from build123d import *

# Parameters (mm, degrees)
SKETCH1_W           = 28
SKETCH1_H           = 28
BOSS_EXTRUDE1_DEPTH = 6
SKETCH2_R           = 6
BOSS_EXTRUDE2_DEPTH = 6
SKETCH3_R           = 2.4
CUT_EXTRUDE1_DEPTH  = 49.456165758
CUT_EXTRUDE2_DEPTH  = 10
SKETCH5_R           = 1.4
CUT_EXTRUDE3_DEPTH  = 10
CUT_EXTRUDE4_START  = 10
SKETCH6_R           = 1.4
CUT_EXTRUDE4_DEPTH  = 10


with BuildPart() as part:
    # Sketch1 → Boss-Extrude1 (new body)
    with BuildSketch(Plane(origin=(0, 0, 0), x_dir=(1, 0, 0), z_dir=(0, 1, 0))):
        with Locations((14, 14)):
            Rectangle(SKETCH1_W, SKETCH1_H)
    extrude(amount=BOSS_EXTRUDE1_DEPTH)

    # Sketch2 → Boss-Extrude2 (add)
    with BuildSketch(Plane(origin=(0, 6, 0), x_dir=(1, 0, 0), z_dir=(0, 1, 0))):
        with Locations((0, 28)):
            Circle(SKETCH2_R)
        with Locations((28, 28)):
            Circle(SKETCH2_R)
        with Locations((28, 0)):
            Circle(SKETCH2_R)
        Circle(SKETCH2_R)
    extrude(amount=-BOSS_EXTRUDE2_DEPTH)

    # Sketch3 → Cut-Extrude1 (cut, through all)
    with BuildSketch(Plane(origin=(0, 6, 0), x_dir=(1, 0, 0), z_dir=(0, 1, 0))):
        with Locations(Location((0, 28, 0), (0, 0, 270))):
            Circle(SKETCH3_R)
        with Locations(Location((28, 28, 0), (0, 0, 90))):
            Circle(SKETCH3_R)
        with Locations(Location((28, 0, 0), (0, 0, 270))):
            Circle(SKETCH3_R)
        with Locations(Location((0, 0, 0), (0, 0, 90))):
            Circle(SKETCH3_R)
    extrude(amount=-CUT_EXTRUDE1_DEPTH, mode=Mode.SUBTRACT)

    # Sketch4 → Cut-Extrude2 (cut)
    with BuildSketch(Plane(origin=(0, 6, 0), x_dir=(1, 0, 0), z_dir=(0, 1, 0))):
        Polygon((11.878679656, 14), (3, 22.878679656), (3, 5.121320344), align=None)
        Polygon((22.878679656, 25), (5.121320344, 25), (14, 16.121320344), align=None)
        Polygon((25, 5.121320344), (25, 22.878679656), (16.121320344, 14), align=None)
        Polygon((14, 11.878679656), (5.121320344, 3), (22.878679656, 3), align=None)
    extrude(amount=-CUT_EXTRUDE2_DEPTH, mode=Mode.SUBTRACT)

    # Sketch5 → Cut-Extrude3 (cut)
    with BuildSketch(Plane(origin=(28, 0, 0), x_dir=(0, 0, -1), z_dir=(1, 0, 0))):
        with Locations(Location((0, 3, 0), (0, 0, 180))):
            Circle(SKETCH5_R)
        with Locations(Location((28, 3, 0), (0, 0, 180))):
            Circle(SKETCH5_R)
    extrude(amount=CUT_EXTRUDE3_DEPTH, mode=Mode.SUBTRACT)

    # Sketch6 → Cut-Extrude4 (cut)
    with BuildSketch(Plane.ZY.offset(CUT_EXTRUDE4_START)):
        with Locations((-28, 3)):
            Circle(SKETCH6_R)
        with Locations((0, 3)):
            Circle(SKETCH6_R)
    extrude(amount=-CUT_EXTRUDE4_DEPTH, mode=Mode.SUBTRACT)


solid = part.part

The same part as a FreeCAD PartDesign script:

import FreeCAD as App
import Part
import Sketcher

doc = App.newDocument("Part")
body = doc.addObject("PartDesign::Body", "Body")

sketch1 = body.newObject("Sketcher::SketchObject", "Sketch")
sketch1.AttachmentSupport = (doc.getObject("XZ_Plane"), [""])
sketch1.MapMode = "FlatFace"
sketch1.addGeometry(Part.LineSegment(App.Vector(0, -28, 0), App.Vector(0, 0, 0)), False)
sketch1.addGeometry(Part.LineSegment(App.Vector(0, 0, 0), App.Vector(28, 0, 0)), False)
sketch1.addGeometry(Part.LineSegment(App.Vector(28, 0, 0), App.Vector(28, -28, 0)), False)
sketch1.addGeometry(Part.LineSegment(App.Vector(28, -28, 0), App.Vector(0, -28, 0)), False)
sketch1.addConstraint(Sketcher.Constraint("Coincident", 0, 2, 1, 1))
sketch1.addConstraint(Sketcher.Constraint("Coincident", 1, 2, 2, 1))
sketch1.addConstraint(Sketcher.Constraint("Coincident", 2, 2, 3, 1))
sketch1.addConstraint(Sketcher.Constraint("Coincident", 3, 2, 0, 1))
sketch1.addConstraint(Sketcher.Constraint("Vertical", 0))
sketch1.addConstraint(Sketcher.Constraint("Horizontal", 1))
sketch1.addConstraint(Sketcher.Constraint("Vertical", 2))
sketch1.addConstraint(Sketcher.Constraint("Horizontal", 3))
sketch1.addConstraint(Sketcher.Constraint("Coincident", 0, 2, -1, 1))
sketch1.addConstraint(Sketcher.Constraint("Equal", 3, 0))
sketch1.addConstraint(Sketcher.Constraint("DistanceX", 1, 1, 1, 2, 28.0))
pad1 = body.newObject("PartDesign::Pad", "Pad")
pad1.Profile = sketch1
pad1.Length = 6
pad1.Reversed = True

sketch2 = body.newObject("Sketcher::SketchObject", "Sketch001")
sketch2.AttachmentSupport = (doc.getObject("XZ_Plane"), [""])
sketch2.MapMode = "FlatFace"
sketch2.AttachmentOffset = App.Placement(App.Vector(0, 0, -6), App.Rotation())
sketch2.addGeometry(Part.Circle(App.Vector(0, -28, 0), App.Vector(0, 0, 1), 6), False)
sketch2.addGeometry(Part.Circle(App.Vector(28, -28, 0), App.Vector(0, 0, 1), 6), False)
sketch2.addGeometry(Part.Circle(App.Vector(28, 0, 0), App.Vector(0, 0, 1), 6), False)
sketch2.addGeometry(Part.Circle(App.Vector(0, 0, 0), App.Vector(0, 0, 1), 6), False)
sketch2.addConstraint(Sketcher.Constraint("Coincident", 3, 3, -1, 1))
sketch2.addConstraint(Sketcher.Constraint("Equal", 0, 1))
sketch2.addConstraint(Sketcher.Constraint("Equal", 1, 2))
sketch2.addConstraint(Sketcher.Constraint("Equal", 2, 3))
sketch2.addConstraint(Sketcher.Constraint("PointOnObject", 0, 3, -2))
sketch2.addConstraint(Sketcher.Constraint("PointOnObject", 2, 3, -1))
sketch2.addConstraint(Sketcher.Constraint("Horizontal", 0, 3, 1, 3))
sketch2.addConstraint(Sketcher.Constraint("Vertical", 1, 3, 2, 3))
sketch2.addConstraint(Sketcher.Constraint("Diameter", 0, 12.0))
sketch2.addConstraint(Sketcher.Constraint("DistanceY", 0, 3, -1, 1, 28.0))
sketch2.addConstraint(Sketcher.Constraint("DistanceX", -1, 1, 1, 3, 28.0))
pad2 = body.newObject("PartDesign::Pad", "Pad001")
pad2.Profile = sketch2
pad2.Length = 6

sketch3 = body.newObject("Sketcher::SketchObject", "Sketch002")
sketch3.AttachmentSupport = (doc.getObject("XZ_Plane"), [""])
sketch3.MapMode = "FlatFace"
sketch3.AttachmentOffset = App.Placement(App.Vector(0, 0, -6), App.Rotation())
sketch3.addGeometry(Part.Circle(App.Vector(0, -28, 0), App.Vector(0, 0, 1), 2.4), False)
sketch3.addGeometry(Part.Circle(App.Vector(28, -28, 0), App.Vector(0, 0, 1), 2.4), False)
sketch3.addGeometry(Part.Circle(App.Vector(28, 0, 0), App.Vector(0, 0, 1), 2.4), False)
sketch3.addGeometry(Part.Circle(App.Vector(0, 0, 0), App.Vector(0, 0, 1), 2.4), False)
sketch3.addConstraint(Sketcher.Constraint("Coincident", 3, 3, -1, 1))
sketch3.addConstraint(Sketcher.Constraint("Equal", 0, 1))
sketch3.addConstraint(Sketcher.Constraint("Equal", 1, 2))
sketch3.addConstraint(Sketcher.Constraint("Equal", 2, 3))
sketch3.addConstraint(Sketcher.Constraint("PointOnObject", 0, 3, -2))
sketch3.addConstraint(Sketcher.Constraint("PointOnObject", 2, 3, -1))
sketch3.addConstraint(Sketcher.Constraint("Horizontal", 0, 3, 1, 3))
sketch3.addConstraint(Sketcher.Constraint("Vertical", 1, 3, 2, 3))
sketch3.addConstraint(Sketcher.Constraint("Diameter", 0, 4.8))
sketch3.addConstraint(Sketcher.Constraint("DistanceY", 0, 3, -1, 1, 28.0))
sketch3.addConstraint(Sketcher.Constraint("DistanceX", -1, 1, 1, 3, 28.0))
pocket1 = body.newObject("PartDesign::Pocket", "Pocket")
pocket1.Profile = sketch3
pocket1.Type = "ThroughAll"
pocket1.Reversed = True

sketch4 = body.newObject("Sketcher::SketchObject", "Sketch003")
sketch4.AttachmentSupport = (doc.getObject("XZ_Plane"), [""])
sketch4.MapMode = "FlatFace"
sketch4.AttachmentOffset = App.Placement(App.Vector(0, 0, -6), App.Rotation())
sketch4.addGeometry(Part.LineSegment(App.Vector(12, -14, 0), App.Vector(3, -23, 0)), False)
sketch4.addGeometry(Part.LineSegment(App.Vector(3, -23, 0), App.Vector(3, -5, 0)), False)
sketch4.addGeometry(Part.LineSegment(App.Vector(3, -5, 0), App.Vector(12, -14, 0)), False)
sketch4.addGeometry(Part.LineSegment(App.Vector(23, -25, 0), App.Vector(5, -25, 0)), False)
sketch4.addGeometry(Part.LineSegment(App.Vector(5, -25, 0), App.Vector(14, -16, 0)), False)
sketch4.addGeometry(Part.LineSegment(App.Vector(14, -16, 0), App.Vector(23, -25, 0)), False)
sketch4.addGeometry(Part.LineSegment(App.Vector(25, -5, 0), App.Vector(25, -23, 0)), False)
sketch4.addGeometry(Part.LineSegment(App.Vector(25, -23, 0), App.Vector(16, -14, 0)), False)
sketch4.addGeometry(Part.LineSegment(App.Vector(16, -14, 0), App.Vector(25, -5, 0)), False)
sketch4.addGeometry(Part.LineSegment(App.Vector(14, -12, 0), App.Vector(5, -3, 0)), False)
sketch4.addGeometry(Part.LineSegment(App.Vector(5, -3, 0), App.Vector(23, -3, 0)), False)
sketch4.addGeometry(Part.LineSegment(App.Vector(23, -3, 0), App.Vector(14, -12, 0)), False)
sketch4.addConstraint(Sketcher.Constraint("Coincident", 0, 2, 1, 1))
sketch4.addConstraint(Sketcher.Constraint("Coincident", 1, 2, 2, 1))
sketch4.addConstraint(Sketcher.Constraint("Coincident", 2, 2, 0, 1))
sketch4.addConstraint(Sketcher.Constraint("Coincident", 3, 2, 4, 1))
sketch4.addConstraint(Sketcher.Constraint("Coincident", 4, 2, 5, 1))
sketch4.addConstraint(Sketcher.Constraint("Coincident", 5, 2, 3, 1))
sketch4.addConstraint(Sketcher.Constraint("Coincident", 6, 2, 7, 1))
sketch4.addConstraint(Sketcher.Constraint("Coincident", 7, 2, 8, 1))
sketch4.addConstraint(Sketcher.Constraint("Coincident", 8, 2, 6, 1))
sketch4.addConstraint(Sketcher.Constraint("Coincident", 9, 2, 10, 1))
sketch4.addConstraint(Sketcher.Constraint("Coincident", 10, 2, 11, 1))
sketch4.addConstraint(Sketcher.Constraint("Coincident", 11, 2, 9, 1))
sketch4.addConstraint(Sketcher.Constraint("Vertical", 1))
sketch4.addConstraint(Sketcher.Constraint("Horizontal", 3))
sketch4.addConstraint(Sketcher.Constraint("Vertical", 6))
sketch4.addConstraint(Sketcher.Constraint("Horizontal", 10))
sketch4.addConstraint(Sketcher.Constraint("Perpendicular", 0, 2))
sketch4.addConstraint(Sketcher.Constraint("Perpendicular", 2, 4))
sketch4.addConstraint(Sketcher.Constraint("Perpendicular", 4, 5))
sketch4.addConstraint(Sketcher.Constraint("Parallel", 5, 7))
sketch4.addConstraint(Sketcher.Constraint("Perpendicular", 7, 8))
sketch4.addConstraint(Sketcher.Constraint("Perpendicular", 8, 9))
sketch4.addConstraint(Sketcher.Constraint("Perpendicular", 9, 11))
sketch4.addConstraint(Sketcher.Constraint("Horizontal", 0, 2, 6, 2))
sketch4.addConstraint(Sketcher.Constraint("Horizontal", 2, 2, 7, 2))
sketch4.addConstraint(Sketcher.Constraint("Horizontal", 1, 2, 8, 2))
sketch4.addConstraint(Sketcher.Constraint("Vertical", 3, 2, 9, 2))
sketch4.addConstraint(Sketcher.Constraint("Vertical", 5, 2, 10, 2))
sketch4.addConstraint(Sketcher.Constraint("Equal", 10, 1))
sketch4.addConstraint(Sketcher.Constraint("DistanceX", -1, 1, 0, 2, 3.0))
sketch4.addConstraint(Sketcher.Constraint("DistanceY", 2, 2, -1, 1, 14.0))
sketch4.addConstraint(Sketcher.Constraint("DistanceY", 3, 2, -1, 1, 25.0))
sketch4.addConstraint(Sketcher.Constraint("DistanceX", -1, 1, 4, 2, 14.0))
sketch4.addConstraint(Sketcher.Constraint("DistanceX", -1, 1, 6, 2, 25.0))
sketch4.addConstraint(Sketcher.Constraint("DistanceY", 9, 2, -1, 1, 3.0))
sketch4.addConstraint(Sketcher.Constraint("DistanceX", 3, 2, 3, 1, 17.757359))
pocket2 = body.newObject("PartDesign::Pocket", "Pocket001")
pocket2.Profile = sketch4
pocket2.Length = 10
pocket2.Reversed = True

sketch5 = body.newObject("Sketcher::SketchObject", "Sketch004")
sketch5.AttachmentSupport = (doc.getObject("YZ_Plane"), [""])
sketch5.MapMode = "FlatFace"
sketch5.AttachmentOffset = App.Placement(App.Vector(0, 0, 28), App.Rotation())
sketch5.addGeometry(Part.Circle(App.Vector(3, 0, 0), App.Vector(0, 0, 1), 1.4), False)
sketch5.addGeometry(Part.Circle(App.Vector(3, -28, 0), App.Vector(0, 0, 1), 1.4), False)
sketch5.addConstraint(Sketcher.Constraint("Equal", 0, 1))
sketch5.addConstraint(Sketcher.Constraint("PointOnObject", 0, 3, -1))
sketch5.addConstraint(Sketcher.Constraint("Vertical", 0, 3, 1, 3))
sketch5.addConstraint(Sketcher.Constraint("Diameter", 0, 2.8))
sketch5.addConstraint(Sketcher.Constraint("DistanceX", -1, 1, 0, 3, 3.0))
sketch5.addConstraint(Sketcher.Constraint("DistanceY", 1, 3, -1, 1, 28.0))
pocket3 = body.newObject("PartDesign::Pocket", "Pocket002")
pocket3.Profile = sketch5
pocket3.Length = 10
pocket3.Reversed = True

sketch6 = body.newObject("Sketcher::SketchObject", "Sketch005")
sketch6.AttachmentSupport = (doc.getObject("YZ_Plane"), [""])
sketch6.MapMode = "FlatFace"
sketch6.AttachmentOffset = App.Placement(App.Vector(0, 0, -10), App.Rotation())
sketch6.addGeometry(Part.Circle(App.Vector(3, -28, 0), App.Vector(0, 0, 1), 1.4), False)
sketch6.addGeometry(Part.Circle(App.Vector(3, 0, 0), App.Vector(0, 0, 1), 1.4), False)
sketch6.addConstraint(Sketcher.Constraint("Equal", 0, 1))
sketch6.addConstraint(Sketcher.Constraint("PointOnObject", 1, 3, -1))
sketch6.addConstraint(Sketcher.Constraint("Vertical", 0, 3, 1, 3))
sketch6.addConstraint(Sketcher.Constraint("Diameter", 0, 2.8))
sketch6.addConstraint(Sketcher.Constraint("DistanceX", -1, 1, 0, 3, 3.0))
sketch6.addConstraint(Sketcher.Constraint("DistanceY", 0, 3, -1, 1, 28.0))
pocket4 = body.newObject("PartDesign::Pocket", "Pocket003")
pocket4.Profile = sketch6
pocket4.Length = 10
pocket4.Reversed = True

doc.recompute()
